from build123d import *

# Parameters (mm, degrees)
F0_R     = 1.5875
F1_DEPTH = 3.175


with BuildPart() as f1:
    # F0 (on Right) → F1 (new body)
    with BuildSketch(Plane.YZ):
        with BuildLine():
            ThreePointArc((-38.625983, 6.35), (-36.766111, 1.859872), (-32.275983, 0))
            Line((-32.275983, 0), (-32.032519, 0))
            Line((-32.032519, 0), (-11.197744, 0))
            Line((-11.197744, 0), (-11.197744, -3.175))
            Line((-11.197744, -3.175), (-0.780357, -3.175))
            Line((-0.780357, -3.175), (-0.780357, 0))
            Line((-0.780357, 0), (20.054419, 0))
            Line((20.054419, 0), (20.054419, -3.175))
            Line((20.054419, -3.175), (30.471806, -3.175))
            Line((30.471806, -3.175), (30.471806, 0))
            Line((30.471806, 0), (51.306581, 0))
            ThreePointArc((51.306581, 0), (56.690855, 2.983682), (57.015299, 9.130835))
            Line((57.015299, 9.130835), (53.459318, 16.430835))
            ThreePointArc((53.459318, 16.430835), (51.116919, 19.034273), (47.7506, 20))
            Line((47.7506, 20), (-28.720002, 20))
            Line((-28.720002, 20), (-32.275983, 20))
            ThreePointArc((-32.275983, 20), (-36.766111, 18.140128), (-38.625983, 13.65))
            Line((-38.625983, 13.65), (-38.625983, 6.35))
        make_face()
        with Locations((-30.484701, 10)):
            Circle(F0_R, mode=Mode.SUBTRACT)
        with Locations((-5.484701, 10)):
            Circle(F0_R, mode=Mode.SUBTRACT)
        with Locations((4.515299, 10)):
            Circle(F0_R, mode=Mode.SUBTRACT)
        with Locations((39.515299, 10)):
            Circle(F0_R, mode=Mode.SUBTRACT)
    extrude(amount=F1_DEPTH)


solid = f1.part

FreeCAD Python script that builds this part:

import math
import FreeCAD as App
import Part
import Sketcher
Q = App.Units.Quantity

doc = App.newDocument("Part")
body = doc.addObject("PartDesign::Body", "Body")

sketch1 = body.newObject("Sketcher::SketchObject", "Sketch")
sketch1.AttachmentSupport = (doc.getObject("YZ_Plane"), [""])
sketch1.MapMode = "FlatFace"
sketch1.addGeometry(Part.ArcOfCircle(Part.Circle(App.Vector(-32.3, 6.4, 0), App.Vector(0, 0, 1), 6.4), math.radians(-180), math.radians(-90)), False)
sketch1.addGeometry(Part.LineSegment(App.Vector(-32.3, 0, 0), App.Vector(-11.2, 0, 0)), False)
sketch1.addGeometry(Part.LineSegment(App.Vector(-11.2, 0, 0), App.Vector(-11.2, -3.2, 0)), False)
sketch1.addGeometry(Part.LineSegment(App.Vector(-11.2, -3.2, 0), App.Vector(-0.8, -3.2, 0)), False)
sketch1.addGeometry(Part.LineSegment(App.Vector(-0.8, -3.2, 0), App.Vector(-0.8, 0, 0)), False)
sketch1.addGeometry(Part.LineSegment(App.Vector(-0.8, 0, 0), App.Vector(20.1, 0, 0)), False)
sketch1.addGeometry(Part.LineSegment(App.Vector(20.1, 0, 0), App.Vector(20.1, -3.2, 0)), False)
sketch1.addGeometry(Part.LineSegment(App.Vector(20.1, -3.2, 0), App.Vector(30.5, -3.2, 0)), False)
sketch1.addGeometry(Part.LineSegment(App.Vector(30.5, -3.2, 0), App.Vector(30.5, 0, 0)), False)
sketch1.addGeometry(Part.LineSegment(App.Vector(30.5, 0, 0), App.Vector(51.3, 0, 0)), False)
sketch1.addGeometry(Part.ArcOfCircle(Part.Circle(App.Vector(51.3, 6.4, 0), App.Vector(0, 0, 1), 6.4), math.radians(-90), math.radians(26)), False)
sketch1.addGeometry(Part.LineSegment(App.Vector(57, 9.1, 0), App.Vector(53.5, 16.4, 0)), False)
sketch1.addGeometry(Part.ArcOfCircle(Part.Circle(App.Vector(47.8, 13.6, 0), App.Vector(0, 0, 1), 6.4), math.radians(26), math.radians(90)), False)
sketch1.addGeometry(Part.LineSegment(App.Vector(47.8, 20, 0), App.Vector(-32.3, 20, 0)), False)
sketch1.addGeometry(Part.ArcOfCircle(Part.Circle(App.Vector(-32.3, 13.6, 0), App.Vector(0, 0, 1), 6.4), math.radians(90), math.radians(180)), False)
sketch1.addGeometry(Part.LineSegment(App.Vector(-38.6, 13.7, 0), App.Vector(-38.6, 6.3, 0)), False)
sketch1.addGeometry(Part.Circle(App.Vector(-30.5, 10, 0), App.Vector(0, 0, 1), 1.6), False)
sketch1.addGeometry(Part.Circle(App.Vector(-5.5, 10, 0), App.Vector(0, 0, 1), 1.6), False)
sketch1.addGeometry(Part.Circle(App.Vector(4.5, 10, 0), App.Vector(0, 0, 1), 1.6), False)
sketch1.addGeometry(Part.Circle(App.Vector(39.5, 10, 0), App.Vector(0, 0, 1), 1.6), False)
sketch1.addConstraint(Sketcher.Constraint("Tangent", 0, 2, 1, 1))
sketch1.addConstraint(Sketcher.Constraint("Coincident", 1, 2, 2, 1))
sketch1.addConstraint(Sketcher.Constraint("Coincident", 2, 2, 3, 1))
sketch1.addConstraint(Sketcher.Constraint("Coincident", 3, 2, 4, 1))
sketch1.addConstraint(Sketcher.Constraint("Coincident", 4, 2, 5, 1))
sketch1.addConstraint(Sketcher.Constraint("Coincident", 5, 2, 6, 1))
sketch1.addConstraint(Sketcher.Constraint("Coincident", 6, 2, 7, 1))
sketch1.addConstraint(Sketcher.Constraint("Coincident", 7, 2, 8, 1))
sketch1.addConstraint(Sketcher.Constraint("Coincident", 8, 2, 9, 1))
sketch1.addConstraint(Sketcher.Constraint("Tangent", 9, 2, 10, 1))
sketch1.addConstraint(Sketcher.Constraint("Tangent", 10, 2, 11, 1))
sketch1.addConstraint(Sketcher.Constraint("Tangent", 11, 2, 12, 1))
sketch1.addConstraint(Sketcher.Constraint("Tangent", 12, 2, 13, 1))
sketch1.addConstraint(Sketcher.Constraint("Tangent", 13, 2, 14, 1))
sketch1.addConstraint(Sketcher.Constraint("Tangent", 14, 2, 15, 1))
sketch1.addConstraint(Sketcher.Constraint("Tangent", 15, 2, 0, 1))
sketch1.addConstraint(Sketcher.Constraint("Horizontal", 1))
sketch1.addConstraint(Sketcher.Constraint("Vertical", 2))
sketch1.addConstraint(Sketcher.Constraint("Horizontal", 3))
sketch1.addConstraint(Sketcher.Constraint("Vertical", 4))
sketch1.addConstraint(Sketcher.Constraint("Horizontal", 5))
sketch1.addConstraint(Sketcher.Constraint("Vertical", 6))
sketch1.addConstraint(Sketcher.Constraint("Horizontal", 7))
sketch1.addConstraint(Sketcher.Constraint("Vertical", 8))
sketch1.addConstraint(Sketcher.Constraint("Horizontal", 9))
sketch1.addConstraint(Sketcher.Constraint("Horizontal", 13))
sketch1.addConstraint(Sketcher.Constraint("Vertical", 15))
sketch1.addConstraint(Sketcher.Constraint("Equal", 0, 10))
sketch1.addConstraint(Sketcher.Constraint("Equal", 10, 12))
sketch1.addConstraint(Sketcher.Constraint("Equal", 12, 14))
sketch1.addConstraint(Sketcher.Constraint("Equal", 16, 17))
sketch1.addConstraint(Sketcher.Constraint("Equal", 17, 18))
sketch1.addConstraint(Sketcher.Constraint("Equal", 18, 19))
sketch1.addConstraint(Sketcher.Constraint("PointOnObject", 0, 2, -1))
sketch1.addConstraint(Sketcher.Constraint("PointOnObject", 4, 2, -1))
sketch1.addConstraint(Sketcher.Constraint("PointOnObject", 8, 2, -1))
sketch1.addConstraint(Sketcher.Constraint("Horizontal", 16, 3, 17, 3))
sketch1.addConstraint(Sketcher.Constraint("Horizontal", 17, 3, 18, 3))
sketch1.addConstraint(Sketcher.Constraint("Horizontal", 18, 3, 19, 3))
sketch1.addConstraint(Sketcher.Constraint("Horizontal", 3, 2, 6, 2))
sketch1.addConstraint(Sketcher.Constraint("Equal", 3, 7))
sketch1.addConstraint(Sketcher.Constraint("Equal", 5, 9))
sketch1.addConstraint(Sketcher.Constraint("Radius", 0, Q("0.25 in")))
sketch1.addConstraint(Sketcher.Constraint("Diameter", 16, Q("0.125 in")))
sketch1.addConstraint(Sketcher.Constraint("DistanceY", 2, 2, 2, 1, Q("0.125 in")))
sketch1.addConstraint(Sketcher.Constraint("DistanceY", 15, 2, 15, 1, 7.3))
sketch1.addConstraint(Sketcher.Constraint("DistanceX", 1, 1, 1, 2, 21.078239))
sketch1.addConstraint(Sketcher.Constraint("DistanceX", -1, 1, 12, 3, 47.750599))
sketch1.addConstraint(Sketcher.Constraint("DistanceX", 16, 3, -1, 1, 30.484701))
sketch1.addConstraint(Sketcher.Constraint("DistanceY", -1, 1, 16, 3, 10.0))
sketch1.addConstraint(Sketcher.Constraint("DistanceX", 17, 3, -1, 1, 5.484701))
sketch1.addConstraint(Sketcher.Constraint("DistanceX", -1, 1, 18, 3, 4.515299))
sketch1.addConstraint(Sketcher.Constraint("DistanceX", -1, 1, 19, 3, 39.515299))
sketch1.addConstraint(Sketcher.Constraint("DistanceX", -1, 1, 10, 2, 57.015299))
sketch1.addConstraint(Sketcher.Constraint("DistanceX", 3, 1, 3, 2, 10.417387))
sketch1.addConstraint(Sketcher.Constraint("DistanceX", 5, 1, 5, 2, 20.834776))
pad1 = body.newObject("PartDesign::Pad", "Pad")
pad1.Profile = sketch1
pad1.Length = Q("0.125 in")

doc.recompute()
